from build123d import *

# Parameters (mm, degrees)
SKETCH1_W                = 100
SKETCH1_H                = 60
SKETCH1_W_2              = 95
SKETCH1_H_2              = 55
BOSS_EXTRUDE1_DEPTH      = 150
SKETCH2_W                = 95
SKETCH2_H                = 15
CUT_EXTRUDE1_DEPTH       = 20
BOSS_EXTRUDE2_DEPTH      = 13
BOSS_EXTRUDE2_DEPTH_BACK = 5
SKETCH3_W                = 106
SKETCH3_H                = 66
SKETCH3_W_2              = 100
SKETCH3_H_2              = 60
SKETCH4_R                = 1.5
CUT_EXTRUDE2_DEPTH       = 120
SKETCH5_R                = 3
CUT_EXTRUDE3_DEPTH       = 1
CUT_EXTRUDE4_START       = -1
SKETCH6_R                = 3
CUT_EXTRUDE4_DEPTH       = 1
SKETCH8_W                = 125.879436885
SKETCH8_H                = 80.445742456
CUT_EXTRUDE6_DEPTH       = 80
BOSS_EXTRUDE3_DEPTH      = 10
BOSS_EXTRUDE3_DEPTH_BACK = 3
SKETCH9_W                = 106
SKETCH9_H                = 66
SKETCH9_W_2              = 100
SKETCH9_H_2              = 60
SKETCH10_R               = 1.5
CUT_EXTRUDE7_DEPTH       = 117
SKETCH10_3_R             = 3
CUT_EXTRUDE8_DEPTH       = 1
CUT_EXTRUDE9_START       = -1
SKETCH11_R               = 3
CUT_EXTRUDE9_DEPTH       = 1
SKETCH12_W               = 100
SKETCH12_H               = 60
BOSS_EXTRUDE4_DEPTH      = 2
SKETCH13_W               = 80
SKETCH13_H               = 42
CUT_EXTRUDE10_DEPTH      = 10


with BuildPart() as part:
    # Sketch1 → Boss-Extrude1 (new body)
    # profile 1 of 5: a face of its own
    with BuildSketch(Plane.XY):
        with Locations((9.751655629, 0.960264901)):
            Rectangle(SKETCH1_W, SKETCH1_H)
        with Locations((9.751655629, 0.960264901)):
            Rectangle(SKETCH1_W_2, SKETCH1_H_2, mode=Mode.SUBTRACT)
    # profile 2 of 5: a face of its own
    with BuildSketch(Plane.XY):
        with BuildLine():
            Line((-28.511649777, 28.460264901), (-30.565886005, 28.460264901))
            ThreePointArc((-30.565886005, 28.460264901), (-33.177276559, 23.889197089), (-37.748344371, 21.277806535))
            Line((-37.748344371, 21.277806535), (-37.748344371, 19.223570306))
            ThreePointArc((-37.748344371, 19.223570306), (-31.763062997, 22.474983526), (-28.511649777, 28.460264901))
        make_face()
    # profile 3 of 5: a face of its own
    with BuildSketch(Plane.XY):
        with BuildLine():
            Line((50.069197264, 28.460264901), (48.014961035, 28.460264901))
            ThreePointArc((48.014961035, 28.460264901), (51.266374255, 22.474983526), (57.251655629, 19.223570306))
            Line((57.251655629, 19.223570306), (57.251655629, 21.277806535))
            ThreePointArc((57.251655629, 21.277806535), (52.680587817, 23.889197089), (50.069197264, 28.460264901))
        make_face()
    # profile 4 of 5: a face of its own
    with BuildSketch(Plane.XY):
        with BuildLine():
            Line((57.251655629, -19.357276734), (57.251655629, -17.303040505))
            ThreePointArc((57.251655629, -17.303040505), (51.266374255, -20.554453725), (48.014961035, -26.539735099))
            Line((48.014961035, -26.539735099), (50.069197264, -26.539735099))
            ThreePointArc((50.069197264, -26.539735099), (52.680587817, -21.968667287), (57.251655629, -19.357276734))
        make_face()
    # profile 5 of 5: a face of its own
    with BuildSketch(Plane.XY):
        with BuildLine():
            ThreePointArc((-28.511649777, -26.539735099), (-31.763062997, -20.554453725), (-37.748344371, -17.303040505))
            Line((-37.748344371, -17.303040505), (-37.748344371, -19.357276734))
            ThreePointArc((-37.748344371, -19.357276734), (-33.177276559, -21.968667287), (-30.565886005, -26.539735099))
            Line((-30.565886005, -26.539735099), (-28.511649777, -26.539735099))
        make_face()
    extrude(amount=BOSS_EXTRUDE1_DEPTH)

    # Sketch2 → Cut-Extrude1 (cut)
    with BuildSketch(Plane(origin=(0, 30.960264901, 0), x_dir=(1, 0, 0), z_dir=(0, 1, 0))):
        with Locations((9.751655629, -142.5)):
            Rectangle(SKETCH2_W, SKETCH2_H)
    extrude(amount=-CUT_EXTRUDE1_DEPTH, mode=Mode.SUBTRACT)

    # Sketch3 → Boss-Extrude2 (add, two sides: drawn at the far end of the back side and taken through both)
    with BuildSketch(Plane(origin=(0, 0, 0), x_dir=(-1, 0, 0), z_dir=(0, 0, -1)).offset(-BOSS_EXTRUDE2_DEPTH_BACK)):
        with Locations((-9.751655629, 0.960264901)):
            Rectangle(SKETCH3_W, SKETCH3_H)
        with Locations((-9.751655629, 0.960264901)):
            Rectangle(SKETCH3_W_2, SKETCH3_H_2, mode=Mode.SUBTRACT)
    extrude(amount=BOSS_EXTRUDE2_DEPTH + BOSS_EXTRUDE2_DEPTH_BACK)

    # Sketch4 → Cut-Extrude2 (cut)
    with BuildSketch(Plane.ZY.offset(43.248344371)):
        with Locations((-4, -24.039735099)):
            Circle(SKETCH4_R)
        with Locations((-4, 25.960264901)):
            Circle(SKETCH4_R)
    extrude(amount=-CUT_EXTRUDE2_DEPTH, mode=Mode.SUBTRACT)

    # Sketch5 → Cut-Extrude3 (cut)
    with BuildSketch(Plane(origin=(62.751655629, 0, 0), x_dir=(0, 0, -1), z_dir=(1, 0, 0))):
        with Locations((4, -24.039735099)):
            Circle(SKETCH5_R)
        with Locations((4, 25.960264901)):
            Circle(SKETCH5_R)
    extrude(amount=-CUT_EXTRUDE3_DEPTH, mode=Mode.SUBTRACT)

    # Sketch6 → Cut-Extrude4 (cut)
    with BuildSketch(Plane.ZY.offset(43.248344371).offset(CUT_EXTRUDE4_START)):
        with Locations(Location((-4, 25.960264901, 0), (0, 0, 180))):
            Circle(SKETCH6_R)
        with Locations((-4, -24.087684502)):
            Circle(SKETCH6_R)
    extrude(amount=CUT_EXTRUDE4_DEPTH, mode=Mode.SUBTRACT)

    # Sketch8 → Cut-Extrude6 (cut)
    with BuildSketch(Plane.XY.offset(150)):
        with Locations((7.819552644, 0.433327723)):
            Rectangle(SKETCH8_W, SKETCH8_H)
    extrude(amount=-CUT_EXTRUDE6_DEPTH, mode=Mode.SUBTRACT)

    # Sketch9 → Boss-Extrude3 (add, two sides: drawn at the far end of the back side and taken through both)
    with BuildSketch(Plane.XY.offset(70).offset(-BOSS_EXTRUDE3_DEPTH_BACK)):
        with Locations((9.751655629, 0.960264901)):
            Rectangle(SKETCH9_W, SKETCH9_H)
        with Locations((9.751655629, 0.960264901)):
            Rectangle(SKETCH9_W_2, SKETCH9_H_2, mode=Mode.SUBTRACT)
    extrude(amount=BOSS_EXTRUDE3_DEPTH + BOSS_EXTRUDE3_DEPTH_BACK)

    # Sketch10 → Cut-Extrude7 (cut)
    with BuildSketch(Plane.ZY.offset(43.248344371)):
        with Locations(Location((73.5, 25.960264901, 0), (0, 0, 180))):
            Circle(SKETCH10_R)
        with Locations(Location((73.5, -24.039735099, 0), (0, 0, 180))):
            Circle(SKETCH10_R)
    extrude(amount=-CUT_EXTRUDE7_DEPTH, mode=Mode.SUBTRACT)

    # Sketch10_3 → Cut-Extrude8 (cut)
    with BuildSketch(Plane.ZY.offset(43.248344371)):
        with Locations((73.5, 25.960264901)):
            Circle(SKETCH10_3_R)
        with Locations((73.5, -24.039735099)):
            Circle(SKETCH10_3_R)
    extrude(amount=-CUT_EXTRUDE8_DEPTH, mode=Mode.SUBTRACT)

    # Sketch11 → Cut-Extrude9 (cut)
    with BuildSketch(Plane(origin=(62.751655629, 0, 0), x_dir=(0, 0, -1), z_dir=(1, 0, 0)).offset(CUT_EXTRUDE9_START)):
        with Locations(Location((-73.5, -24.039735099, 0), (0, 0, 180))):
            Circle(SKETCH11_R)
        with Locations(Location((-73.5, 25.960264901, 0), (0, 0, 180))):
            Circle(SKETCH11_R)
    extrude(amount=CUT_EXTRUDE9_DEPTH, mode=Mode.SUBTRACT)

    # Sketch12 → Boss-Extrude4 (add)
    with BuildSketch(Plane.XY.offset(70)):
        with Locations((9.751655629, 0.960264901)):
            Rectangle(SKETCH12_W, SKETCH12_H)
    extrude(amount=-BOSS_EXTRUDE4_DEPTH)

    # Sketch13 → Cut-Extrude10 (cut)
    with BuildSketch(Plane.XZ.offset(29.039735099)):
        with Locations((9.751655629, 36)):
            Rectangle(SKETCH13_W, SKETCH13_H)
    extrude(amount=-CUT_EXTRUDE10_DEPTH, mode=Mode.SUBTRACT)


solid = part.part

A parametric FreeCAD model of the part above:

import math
import FreeCAD as App
import Part
import Sketcher

V = App.Vector
Q = App.Units.Quantity


def add_polygon(sketch, points):
    """Adds a closed chain of lines whose ends are joined by coincident constraints."""
    first, n = sketch.GeometryCount, len(points)
    for a, b in zip(points, points[1:] + points[:1]):
        sketch.addGeometry(Part.LineSegment(App.Vector(*a, 0), App.Vector(*b, 0)), False)
    for i in range(n):
        sketch.addConstraint(Sketcher.Constraint("Coincident", first + i, 2, first + (i + 1) % n, 1))

doc = App.newDocument("Part")
params = doc.addObject("Spreadsheet::Sheet", "Params")
for row, (alias, value) in enumerate([
    ("sketch1_radius", "10 mm"),
    ("sketch1_radius2", "12 mm"),
    ("sketch1_width", "100 mm"),
    ("sketch1_height", "60 mm"),
    ("pad1_length", "150 mm"),
    ("sketch2_width", "95 mm"),
    ("sketch2_height", "15 mm"),
    ("pocket1_length", "20 mm"),
    ("sketch3_width", "106 mm"),
    ("sketch3_width2", "100 mm"),
    ("sketch3_height", "66 mm"),
    ("sketch3_height2", "60 mm"),
    ("pad2_length", "13 mm"),
    ("pad2_length2", "5 mm"),
    ("sketch4_diameter", "3 mm"),
    ("pocket2_length", "120 mm"),
    ("sketch5_diameter", "6 mm"),
    ("pocket3_length", "1 mm"),
    ("sketch6_diameter", "6 mm"),
    ("pocket4_length", "1 mm"),
    ("pocket5_length", "80 mm"),
    ("sketch8_width", "106 mm"),
    ("sketch8_width2", "100 mm"),
    ("sketch8_height", "66 mm"),
    ("sketch8_height2", "60 mm"),
    ("pad3_length", "10 mm"),
    ("pad3_length2", "3 mm"),
    ("sketch9_diameter", "3 mm"),
    ("pocket6_length", "117 mm"),
    ("sketch10_diameter", "6 mm"),
    ("pocket7_length", "1 mm"),
    ("sketch11_diameter", "6 mm"),
    ("pocket8_length", "1 mm"),
    ("sketch12_width", "100 mm"),
    ("sketch12_height", "60 mm"),
    ("pad4_length", "2 mm"),
    ("sketch13_width", "80 mm"),
    ("sketch13_height", "42 mm"),
    ("pocket9_length", "10 mm"),
], start=1):
    params.set(f"A{row}", alias)
    params.set(f"B{row}", "=" + value)
    params.setAlias(f"B{row}", alias)

body = doc.addObject("PartDesign::Body", "Body")

sketch1 = body.newObject("Sketcher::SketchObject", "Sketch")
sketch1.AttachmentSupport = (doc.getObject("XY_Plane"), [""])
sketch1.MapMode = "FlatFace"
add_polygon(sketch1, [(-40, 31), (-40, -29), (60, -29), (60, 31)])
sketch1.addGeometry(Part.LineSegment(V(-31, -27, 0), V(-38, -27, 0)), False)
sketch1.addGeometry(Part.LineSegment(V(-38, -27, 0), V(-38, -19, 0)), False)
sketch1.addGeometry(Part.ArcOfCircle(Part.Circle(V(-40, -29, 0), V(0, 0, 1), 10), math.radians(14), math.radians(76)), False)
sketch1.addGeometry(Part.LineSegment(V(48, -27, 0), V(-29, -27, 0)), False)
sketch1.addGeometry(Part.ArcOfCircle(Part.Circle(V(-40, -29, 0), V(0, 0, 1), 12), math.radians(12), math.radians(78)), False)
sketch1.addGeometry(Part.LineSegment(V(-38, -17, 0), V(-38, 19, 0)), False)
sketch1.addGeometry(Part.ArcOfCircle(Part.Circle(V(-40, 31, 0), V(0, 0, 1), 12), math.radians(-78), math.radians(-12)), False)
sketch1.addGeometry(Part.LineSegment(V(-29, 28, 0), V(48, 28, 0)), False)
sketch1.addGeometry(Part.ArcOfCircle(Part.Circle(V(60, 31, 0), V(0, 0, 1), 12), math.radians(-168), math.radians(-102)), False)
sketch1.addGeometry(Part.LineSegment(V(57, 19, 0), V(57, -17, 0)), False)
sketch1.addGeometry(Part.ArcOfCircle(Part.Circle(V(60, -29, 0), V(0, 0, 1), 12), math.radians(102), math.radians(168)), False)
sketch1.addGeometry(Part.LineSegment(V(57, -27, 0), V(50, -27, 0)), False)
sketch1.addGeometry(Part.ArcOfCircle(Part.Circle(V(60, -29, 0), V(0, 0, 1), 10), math.radians(104), math.radians(166)), False)
sketch1.addGeometry(Part.LineSegment(V(57, -19, 0), V(57, -27, 0)), False)
sketch1.addGeometry(Part.LineSegment(V(57, 28, 0), V(57, 21, 0)), False)
sketch1.addGeometry(Part.ArcOfCircle(Part.Circle(V(60, 31, 0), V(0, 0, 1), 10), math.radians(-166), math.radians(-104)), False)
sketch1.addGeometry(Part.LineSegment(V(50, 28, 0), V(57, 28, 0)), False)
sketch1.addGeometry(Part.LineSegment(V(-38, 28, 0), V(-31, 28, 0)), False)
sketch1.addGeometry(Part.ArcOfCircle(Part.Circle(V(-40, 31, 0), V(0, 0, 1), 10), math.radians(-76), math.radians(-14)), False)
sketch1.addGeometry(Part.LineSegment(V(-38, 21, 0), V(-38, 28, 0)), False)
sketch1.addConstraint(Sketcher.Constraint("Coincident", 4, 2, 5, 1))
sketch1.addConstraint(Sketcher.Constraint("Coincident", 5, 2, 6, 2))
sketch1.addConstraint(Sketcher.Constraint("Coincident", 6, 1, 4, 1))
sketch1.addConstraint(Sketcher.Constraint("Coincident", 7, 2, 8, 1))
sketch1.addConstraint(Sketcher.Constraint("Coincident", 8, 2, 9, 1))
sketch1.addConstraint(Sketcher.Constraint("Coincident", 9, 2, 10, 1))
sketch1.addConstraint(Sketcher.Constraint("Coincident", 10, 2, 11, 1))
sketch1.addConstraint(Sketcher.Constraint("Coincident", 11, 2, 12, 1))
sketch1.addConstraint(Sketcher.Constraint("Coincident", 12, 2, 13, 1))
sketch1.addConstraint(Sketcher.Constraint("Coincident", 13, 2, 14, 1))
sketch1.addConstraint(Sketcher.Constraint("Coincident", 14, 2, 7, 1))
sketch1.addConstraint(Sketcher.Constraint("Coincident", 15, 2, 16, 2))
sketch1.addConstraint(Sketcher.Constraint("Coincident", 16, 1, 17, 1))
sketch1.addConstraint(Sketcher.Constraint("Coincident", 17, 2, 15, 1))
sketch1.addConstraint(Sketcher.Constraint("Coincident", 18, 2, 19, 2))
sketch1.addConstraint(Sketcher.Constraint("Coincident", 19, 1, 20, 1))
sketch1.addConstraint(Sketcher.Constraint("Coincident", 20, 2, 18, 1))
sketch1.addConstraint(Sketcher.Constraint("Coincident", 21, 2, 22, 2))
sketch1.addConstraint(Sketcher.Constraint("Coincident", 22, 1, 23, 1))
sketch1.addConstraint(Sketcher.Constraint("Coincident", 23, 2, 21, 1))
sketch1.addConstraint(Sketcher.Constraint("Vertical", 0))
sketch1.addConstraint(Sketcher.Constraint("Horizontal", 1))
sketch1.addConstraint(Sketcher.Constraint("Vertical", 2))
sketch1.addConstraint(Sketcher.Constraint("Horizontal", 3))
sketch1.addConstraint(Sketcher.Constraint("Horizontal", 4))
sketch1.addConstraint(Sketcher.Constraint("Vertical", 5))
sketch1.addConstraint(Sketcher.Constraint("Horizontal", 7))
sketch1.addConstraint(Sketcher.Constraint("Vertical", 9))
sketch1.addConstraint(Sketcher.Constraint("Horizontal", 11))
sketch1.addConstraint(Sketcher.Constraint("Vertical", 13))
sketch1.addConstraint(Sketcher.Constraint("Horizontal", 15))
sketch1.addConstraint(Sketcher.Constraint("Vertical", 17))
sketch1.addConstraint(Sketcher.Constraint("Vertical", 18))
sketch1.addConstraint(Sketcher.Constraint("Horizontal", 20))
sketch1.addConstraint(Sketcher.Constraint("Horizontal", 21))
sketch1.addConstraint(Sketcher.Constraint("Vertical", 23))
sketch1.addConstraint(Sketcher.Constraint("Coincident", 8, 3, 6, 3))
sketch1.addConstraint(Sketcher.Constraint("Coincident", 16, 3, 14, 3))
sketch1.addConstraint(Sketcher.Constraint("Coincident", 19, 3, 12, 3))
sketch1.addConstraint(Sketcher.Constraint("Coincident", 22, 3, 10, 3))
sketch1.addConstraint(Sketcher.Constraint("Coincident", 0, 2, 6, 3))
sketch1.addConstraint(Sketcher.Constraint("Coincident", 1, 2, 14, 3))
sketch1.addConstraint(Sketcher.Constraint("Coincident", 2, 2, 12, 3))
sketch1.addConstraint(Sketcher.Constraint("Coincident", 3, 2, 10, 3))
sketch1.addConstraint(Sketcher.Constraint("Equal", 8, 10))
sketch1.addConstraint(Sketcher.Constraint("Equal", 10, 12))
sketch1.addConstraint(Sketcher.Constraint("Equal", 12, 14))
sketch1.addConstraint(Sketcher.Constraint("Equal", 6, 16))
sketch1.addConstraint(Sketcher.Constraint("Equal", 16, 19))
sketch1.addConstraint(Sketcher.Constraint("Equal", 19, 22))
sketch1.addConstraint(Sketcher.Constraint("Horizontal", 6, 1, 7, 2))
sketch1.addConstraint(Sketcher.Constraint("Horizontal", 9, 2, 12, 2))
sketch1.addConstraint(Sketcher.Constraint("Horizontal", 14, 2, 15, 2))
sketch1.addConstraint(Sketcher.Constraint("Horizontal", 5, 2, 16, 1))
sketch1.addConstraint(Sketcher.Constraint("Horizontal", 11, 2, 19, 1))
sketch1.addConstraint(Sketcher.Constraint("Horizontal", 20, 2, 21, 2))
sketch1.addConstraint(Sketcher.Constraint("Horizontal", 18, 2, 22, 1))
sketch1.addConstraint(Sketcher.Constraint("Vertical", 5, 2, 8, 2))
sketch1.addConstraint(Sketcher.Constraint("Vertical", 7, 2, 10, 2))
sketch1.addConstraint(Sketcher.Constraint("Vertical", 17, 2, 18, 2))
sketch1.addConstraint(Sketcher.Constraint("Equal", 21, 5))
sketch1.addConstraint(Sketcher.Constraint("Radius", 6, Q("10 mm")))
sketch1.addConstraint(Sketcher.Constraint("Radius", 8, Q("12 mm")))
sketch1.addConstraint(Sketcher.Constraint("DistanceX", 1, 1, 1, 2, Q("100 mm")))
sketch1.addConstraint(Sketcher.Constraint("DistanceY", 0, 2, 0, 1, Q("60 mm")))
sketch1.addConstraint(Sketcher.Constraint("DistanceX", 6, 3, 4, 2, Q("2.5 mm")))
sketch1.addConstraint(Sketcher.Constraint("DistanceX", 7, 2, -1, 1, Q("28.51165 mm")))
sketch1.addConstraint(Sketcher.Constraint("DistanceY", 8, 2, -1, 1, Q("17.303041 mm")))
sketch1.setExpression("Constraints[65]", "Params.sketch1_radius")
sketch1.setExpression("Constraints[66]", "Params.sketch1_radius2")
sketch1.setExpression("Constraints[67]", "Params.sketch1_width")
sketch1.setExpression("Constraints[68]", "Params.sketch1_height")
pad1 = body.newObject("PartDesign::Pad", "Pad")
pad1.Profile = sketch1
pad1.setExpression("Length", "Params.pad1_length")

sketch2 = body.newObject("Sketcher::SketchObject", "Sketch001")
sketch2.AttachmentSupport = (doc.getObject("XZ_Plane"), [""])
sketch2.MapMode = "FlatFace"
sketch2.AttachmentOffset = App.Placement(V(0, 0, -30.960265), App.Rotation())
add_polygon(sketch2, [(-38, 135), (-38, 150), (57, 150), (57, 135)])
sketch2.addConstraint(Sketcher.Constraint("Vertical", 0))
sketch2.addConstraint(Sketcher.Constraint("Horizontal", 1))
sketch2.addConstraint(Sketcher.Constraint("Vertical", 2))
sketch2.addConstraint(Sketcher.Constraint("Horizontal", 3))
sketch2.addConstraint(Sketcher.Constraint("DistanceX", 1, 1, 1, 2, Q("95 mm")))
sketch2.addConstraint(Sketcher.Constraint("DistanceY", 0, 1, 0, 2, Q("15 mm")))
sketch2.addConstraint(Sketcher.Constraint("DistanceY", -1, 1, 0, 2, Q("150 mm")))
sketch2.addConstraint(Sketcher.Constraint("DistanceX", 0, 2, -1, 1, Q("37.748344 mm")))
sketch2.setExpression("Constraints[8]", "Params.sketch2_width")
sketch2.setExpression("Constraints[9]", "Params.sketch2_height")
pocket1 = body.newObject("PartDesign::Pocket", "Pocket")
pocket1.Profile = sketch2
pocket1.setExpression("Length", "Params.pocket1_length")
pocket1.Reversed = True

sketch3 = body.newObject("Sketcher::SketchObject", "Sketch002")
sketch3.AttachmentSupport = (doc.getObject("XY_Plane"), [""])
sketch3.MapMode = "FlatFace"
add_polygon(sketch3, [(63, 34), (63, -32), (-43, -32), (-43, 34)])
add_polygon(sketch3, [(-40, -29), (60, -29), (60, 31), (-40, 31)])
sketch3.addConstraint(Sketcher.Constraint("Vertical", 0))
sketch3.addConstraint(Sketcher.Constraint("Horizontal", 1))
sketch3.addConstraint(Sketcher.Constraint("Vertical", 2))
sketch3.addConstraint(Sketcher.Constraint("Horizontal", 3))
sketch3.addConstraint(Sketcher.Constraint("Horizontal", 4))
sketch3.addConstraint(Sketcher.Constraint("Vertical", 5))
sketch3.addConstraint(Sketcher.Constraint("Horizontal", 6))
sketch3.addConstraint(Sketcher.Constraint("Vertical", 7))
sketch3.addConstraint(Sketcher.Constraint("DistanceX", 1, 2, 1, 1, Q("106 mm")))
sketch3.addConstraint(Sketcher.Constraint("DistanceX", 4, 1, 4, 2, Q("100 mm")))
sketch3.addConstraint(Sketcher.Constraint("DistanceY", 0, 2, 0, 1, Q("66 mm")))
sketch3.addConstraint(Sketcher.Constraint("DistanceY", 5, 1, 5, 2, Q("60 mm")))
sketch3.addConstraint(Sketcher.Constraint("DistanceX", 4, 2, 0, 2, Q("3 mm")))
sketch3.addConstraint(Sketcher.Constraint("DistanceY", 0, 2, 4, 2, Q("3 mm")))
sketch3.addConstraint(Sketcher.Constraint("DistanceX", -1, 1, 0, 2, Q("62.751656 mm")))
sketch3.addConstraint(Sketcher.Constraint("DistanceY", 0, 2, -1, 1, Q("32.039735 mm")))
sketch3.setExpression("Constraints[16]", "Params.sketch3_width")
sketch3.setExpression("Constraints[17]", "Params.sketch3_width2")
sketch3.setExpression("Constraints[18]", "Params.sketch3_height")
sketch3.setExpression("Constraints[19]", "Params.sketch3_height2")
pad2 = body.newObject("PartDesign::Pad", "Pad001")
pad2.Profile = sketch3
pad2.Type = "TwoLengths"
pad2.setExpression("Length", "Params.pad2_length")
pad2.setExpression("Length2", "Params.pad2_length2")
pad2.Reversed = True

sketch4 = body.newObject("Sketcher::SketchObject", "Sketch003")
sketch4.AttachmentSupport = (doc.getObject("YZ_Plane"), [""])
sketch4.MapMode = "FlatFace"
sketch4.AttachmentOffset = App.Placement(V(0, 0, -43.248344), App.Rotation())
sketch4.addGeometry(Part.Circle(V(-24, -4, 0), V(0, 0, 1), 1.5), False)
sketch4.addGeometry(Part.Circle(V(26, -4, 0), V(0, 0, 1), 1.5), False)
sketch4.addConstraint(Sketcher.Constraint("Equal", 0, 1))
sketch4.addConstraint(Sketcher.Constraint("Horizontal", 0, 3, 1, 3))
sketch4.addConstraint(Sketcher.Constraint("Diameter", 0, Q("3 mm")))
sketch4.addConstraint(Sketcher.Constraint("DistanceY", 0, 3, -1, 1, Q("4 mm")))
sketch4.addConstraint(Sketcher.Constraint("DistanceX", 0, 3, 1, 3, Q("50 mm")))
sketch4.addConstraint(Sketcher.Constraint("DistanceX", 0, 3, -1, 1, Q("24.039735 mm")))
sketch4.setExpression("Constraints[2]", "Params.sketch4_diameter")
pocket2 = body.newObject("PartDesign::Pocket", "Pocket001")
pocket2.Profile = sketch4
pocket2.setExpression("Length", "Params.pocket2_length")
pocket2.Reversed = True

sketch5 = body.newObject("Sketcher::SketchObject", "Sketch004")
sketch5.AttachmentSupport = (doc.getObject("YZ_Plane"), [""])
sketch5.MapMode = "FlatFace"
sketch5.AttachmentOffset = App.Placement(V(0, 0, 62.751656), App.Rotation())
sketch5.addGeometry(Part.Circle(V(-24, -4, 0), V(0, 0, 1), 3), False)
sketch5.addGeometry(Part.Circle(V(26, -4, 0), V(0, 0, 1), 3), False)
sketch5.addConstraint(Sketcher.Constraint("Equal", 0, 1))
sketch5.addConstraint(Sketcher.Constraint("Horizontal", 0, 3, 1, 3))
sketch5.addConstraint(Sketcher.Constraint("Diameter", 0, Q("6 mm")))
sketch5.addConstraint(Sketcher.Constraint("DistanceY", 0, 3, -1, 1, Q("4 mm")))
sketch5.addConstraint(Sketcher.Constraint("DistanceX", 0, 3, 1, 3, Q("50 mm")))
sketch5.addConstraint(Sketcher.Constraint("DistanceX", 0, 3, -1, 1, Q("24.039735 mm")))
sketch5.setExpression("Constraints[2]", "Params.sketch5_diameter")
pocket3 = body.newObject("PartDesign::Pocket", "Pocket002")
pocket3.Profile = sketch5
pocket3.setExpression("Length", "Params.pocket3_length")

sketch6 = body.newObject("Sketcher::SketchObject", "Sketch005")
sketch6.AttachmentSupport = (doc.getObject("YZ_Plane"), [""])
sketch6.MapMode = "FlatFace"
sketch6.AttachmentOffset = App.Placement(V(0, 0, -42.248344), App.Rotation())
sketch6.addGeometry(Part.Circle(V(26, -4, 0), V(0, 0, 1), 3), False)
sketch6.addGeometry(Part.Circle(V(-24.1, -4, 0), V(0, 0, 1), 3), False)
sketch6.addConstraint(Sketcher.Constraint("Equal", 0, 1))
sketch6.addConstraint(Sketcher.Constraint("Horizontal", 0, 3, 1, 3))
sketch6.addConstraint(Sketcher.Constraint("Diameter", 0, Q("6 mm")))
sketch6.addConstraint(Sketcher.Constraint("DistanceY", 0, 3, -1, 1, Q("4 mm")))
sketch6.addConstraint(Sketcher.Constraint("DistanceX", 1, 3, 0, 3, Q("50.047949 mm")))
sketch6.addConstraint(Sketcher.Constraint("DistanceX", -1, 1, 0, 3, Q("25.960265 mm")))
sketch6.setExpression("Constraints[2]", "Params.sketch6_diameter")
pocket4 = body.newObject("PartDesign::Pocket", "Pocket003")
pocket4.Profile = sketch6
pocket4.setExpression("Length", "Params.pocket4_length")

sketch7 = body.newObject("Sketcher::SketchObject", "Sketch006")
sketch7.AttachmentSupport = (doc.getObject("XY_Plane"), [""])
sketch7.MapMode = "FlatFace"
sketch7.AttachmentOffset = App.Placement(V(0, 0, 150), App.Rotation())
add_polygon(sketch7, [(-55, 41), (-55, -40), (71, -40), (71, 41)])
sketch7.addConstraint(Sketcher.Constraint("Vertical", 0))
sketch7.addConstraint(Sketcher.Constraint("Horizontal", 1))
sketch7.addConstraint(Sketcher.Constraint("Vertical", 2))
sketch7.addConstraint(Sketcher.Constraint("Horizontal", 3))
sketch7.addConstraint(Sketcher.Constraint("DistanceY", -1, 1, 2, 2, Q("40.656199 mm")))
sketch7.addConstraint(Sketcher.Constraint("DistanceX", 1, 1, 1, 2, Q("125.879437 mm")))
sketch7.addConstraint(Sketcher.Constraint("DistanceY", 0, 2, 0, 1, Q("80.445742 mm")))
sketch7.addConstraint(Sketcher.Constraint("DistanceX", -1, 1, 1, 2, Q("70.759271 mm")))
pocket5 = body.newObject("PartDesign::Pocket", "Pocket004")
pocket5.Profile = sketch7
pocket5.setExpression("Length", "Params.pocket5_length")

sketch8 = body.newObject("Sketcher::SketchObject", "Sketch007")
sketch8.AttachmentSupport = (doc.getObject("XY_Plane"), [""])
sketch8.MapMode = "FlatFace"
sketch8.AttachmentOffset = App.Placement(V(0, 0, 70), App.Rotation())
add_polygon(sketch8, [(-43, 34), (-43, -32), (63, -32), (63, 34)])
add_polygon(sketch8, [(60, -29), (-40, -29), (-40, 31), (60, 31)])
sketch8.addConstraint(Sketcher.Constraint("Vertical", 0))
sketch8.addConstraint(Sketcher.Constraint("Horizontal", 1))
sketch8.addConstraint(Sketcher.Constraint("Vertical", 2))
sketch8.addConstraint(Sketcher.Constraint("Horizontal", 3))
sketch8.addConstraint(Sketcher.Constraint("Horizontal", 4))
sketch8.addConstraint(Sketcher.Constraint("Vertical", 5))
sketch8.addConstraint(Sketcher.Constraint("Horizontal", 6))
sketch8.addConstraint(Sketcher.Constraint("Vertical", 7))
sketch8.addConstraint(Sketcher.Constraint("DistanceX", 1, 1, 1, 2, Q("106 mm")))
sketch8.addConstraint(Sketcher.Constraint("DistanceX", 4, 2, 4, 1, Q("100 mm")))
sketch8.addConstraint(Sketcher.Constraint("DistanceY", 0, 2, 0, 1, Q("66 mm")))
sketch8.addConstraint(Sketcher.Constraint("DistanceY", 5, 1, 5, 2, Q("60 mm")))
sketch8.addConstraint(Sketcher.Constraint("DistanceX", 0, 2, 4, 2, Q("3 mm")))
sketch8.addConstraint(Sketcher.Constraint("DistanceY", 0, 2, 4, 2, Q("3 mm")))
sketch8.addConstraint(Sketcher.Constraint("DistanceX", 0, 2, -1, 1, Q("43.248344 mm")))
sketch8.addConstraint(Sketcher.Constraint("DistanceY", 0, 2, -1, 1, Q("32.039735 mm")))
sketch8.setExpression("Constraints[16]", "Params.sketch8_width")
sketch8.setExpression("Constraints[17]", "Params.sketch8_width2")
sketch8.setExpression("Constraints[18]", "Params.sketch8_height")
sketch8.setExpression("Constraints[19]", "Params.sketch8_height2")
pad3 = body.newObject("PartDesign::Pad", "Pad002")
pad3.Profile = sketch8
pad3.Type = "TwoLengths"
pad3.setExpression("Length", "Params.pad3_length")
pad3.setExpression("Length2", "Params.pad3_length2")

sketch9 = body.newObject("Sketcher::SketchObject", "Sketch008")
sketch9.AttachmentSupport = (doc.getObject("YZ_Plane"), [""])
sketch9.MapMode = "FlatFace"
sketch9.AttachmentOffset = App.Placement(V(0, 0, -43.248344), App.Rotation())
sketch9.addGeometry(Part.Circle(V(26, 73.5, 0), V(0, 0, 1), 1.5), False)
sketch9.addGeometry(Part.Circle(V(-24, 73.5, 0), V(0, 0, 1), 1.5), False)
sketch9.addConstraint(Sketcher.Constraint("Equal", 0, 1))
sketch9.addConstraint(Sketcher.Constraint("Horizontal", 0, 3, 1, 3))
sketch9.addConstraint(Sketcher.Constraint("Diameter", 0, Q("3 mm")))
sketch9.addConstraint(Sketcher.Constraint("DistanceX", 1, 3, 0, 3, Q("50 mm")))
sketch9.addConstraint(Sketcher.Constraint("DistanceY", -1, 1, 0, 3, Q("73.5 mm")))
sketch9.addConstraint(Sketcher.Constraint("DistanceX", -1, 1, 0, 3, Q("25.960265 mm")))
sketch9.setExpression("Constraints[2]", "Params.sketch9_diameter")
pocket6 = body.newObject("PartDesign::Pocket", "Pocket005")
pocket6.Profile = sketch9
pocket6.setExpression("Length", "Params.pocket6_length")
pocket6.Reversed = True

sketch10 = body.newObject("Sketcher::SketchObject", "Sketch009")
sketch10.AttachmentSupport = (doc.getObject("YZ_Plane"), [""])
sketch10.MapMode = "FlatFace"
sketch10.AttachmentOffset = App.Placement(V(0, 0, -43.248344), App.Rotation())
sketch10.addGeometry(Part.Circle(V(26, 73.5, 0), V(0, 0, 1), 3), False)
sketch10.addGeometry(Part.Circle(V(-24, 73.5, 0), V(0, 0, 1), 3), False)
sketch10.addConstraint(Sketcher.Constraint("Equal", 0, 1))
sketch10.addConstraint(Sketcher.Constraint("Horizontal", 0, 3, 1, 3))
sketch10.addConstraint(Sketcher.Constraint("Diameter", 0, Q("6 mm")))
sketch10.addConstraint(Sketcher.Constraint("DistanceX", 1, 3, 0, 3, Q("50 mm")))
sketch10.addConstraint(Sketcher.Constraint("DistanceY", -1, 1, 0, 3, Q("73.5 mm")))
sketch10.addConstraint(Sketcher.Constraint("DistanceX", -1, 1, 0, 3, Q("25.960265 mm")))
sketch10.setExpression("Constraints[2]", "Params.sketch10_diameter")
pocket7 = body.newObject("PartDesign::Pocket", "Pocket006")
pocket7.Profile = sketch10
pocket7.setExpression("Length", "Params.pocket7_length")
pocket7.Reversed = True

sketch11 = body.newObject("Sketcher::SketchObject", "Sketch010")
sketch11.AttachmentSupport = (doc.getObject("YZ_Plane"), [""])
sketch11.MapMode = "FlatFace"
sketch11.AttachmentOffset = App.Placement(V(0, 0, 61.751656), App.Rotation())
sketch11.addGeometry(Part.Circle(V(-24, 73.5, 0), V(0, 0, 1), 3), False)
sketch11.addGeometry(Part.Circle(V(26, 73.5, 0), V(0, 0, 1), 3), False)
sketch11.addConstraint(Sketcher.Constraint("Equal", 0, 1))
sketch11.addConstraint(Sketcher.Constraint("Horizontal", 0, 3, 1, 3))
sketch11.addConstraint(Sketcher.Constraint("Diameter", 0, Q("6 mm")))
sketch11.addConstraint(Sketcher.Constraint("DistanceX", 0, 3, 1, 3, Q("50 mm")))
sketch11.addConstraint(Sketcher.Constraint("DistanceY", -1, 1, 0, 3, Q("73.5 mm")))
sketch11.addConstraint(Sketcher.Constraint("DistanceX", 0, 3, -1, 1, Q("24.039735 mm")))
sketch11.setExpression("Constraints[2]", "Params.sketch11_diameter")
pocket8 = body.newObject("PartDesign::Pocket", "Pocket007")
pocket8.Profile = sketch11
pocket8.setExpression("Length", "Params.pocket8_length")
pocket8.Reversed = True

sketch12 = body.newObject("Sketcher::SketchObject", "Sketch011")
sketch12.AttachmentSupport = (doc.getObject("XY_Plane"), [""])
sketch12.MapMode = "FlatFace"
sketch12.AttachmentOffset = App.Placement(V(0, 0, 70), App.Rotation())
add_polygon(sketch12, [(-40, 31), (-40, -29), (60, -29), (60, 31)])
sketch12.addConstraint(Sketcher.Constraint("Vertical", 0))
sketch12.addConstraint(Sketcher.Constraint("Horizontal", 1))
sketch12.addConstraint(Sketcher.Constraint("Vertical", 2))
sketch12.addConstraint(Sketcher.Constraint("Horizontal", 3))
sketch12.addConstraint(Sketcher.Constraint("DistanceX", 1, 1, 1, 2, Q("100 mm")))
sketch12.addConstraint(Sketcher.Constraint("DistanceY", 0, 2, 0, 1, Q("60 mm")))
sketch12.addConstraint(Sketcher.Constraint("DistanceX", 0, 2, -1, 1, Q("40.248344 mm")))
sketch12.addConstraint(Sketcher.Constraint("DistanceY", 0, 2, -1, 1, Q("29.039735 mm")))
sketch12.setExpression("Constraints[8]", "Params.sketch12_width")
sketch12.setExpression("Constraints[9]", "Params.sketch12_height")
pad4 = body.newObject("PartDesign::Pad", "Pad003")
pad4.Profile = sketch12
pad4.setExpression("Length", "Params.pad4_length")
pad4.Reversed = True

sketch13 = body.newObject("Sketcher::SketchObject", "Sketch012")
sketch13.AttachmentSupport = (doc.getObject("XZ_Plane"), [""])
sketch13.MapMode = "FlatFace"
sketch13.AttachmentOffset = App.Placement(V(0, 0, 29.039735), App.Rotation())
add_polygon(sketch13, [(-30, 57), (-30, 15), (50, 15), (50, 57)])
sketch13.addConstraint(Sketcher.Constraint("Vertical", 0))
sketch13.addConstraint(Sketcher.Constraint("Horizontal", 1))
sketch13.addConstraint(Sketcher.Constraint("Vertical", 2))
sketch13.addConstraint(Sketcher.Constraint("Horizontal", 3))
sketch13.addConstraint(Sketcher.Constraint("DistanceX", 1, 1, 1, 2, Q("80 mm")))
sketch13.addConstraint(Sketcher.Constraint("DistanceY", 0, 2, 0, 1, Q("42 mm")))
sketch13.addConstraint(Sketcher.Constraint("DistanceY", -1, 1, 0, 2, Q("15 mm")))
sketch13.addConstraint(Sketcher.Constraint("DistanceX", 0, 2, -1, 1, Q("30.248344 mm")))
sketch13.setExpression("Constraints[8]", "Params.sketch13_width")
sketch13.setExpression("Constraints[9]", "Params.sketch13_height")
pocket9 = body.newObject("PartDesign::Pocket", "Pocket008")
pocket9.Profile = sketch13
pocket9.setExpression("Length", "Params.pocket9_length")

doc.recompute()
